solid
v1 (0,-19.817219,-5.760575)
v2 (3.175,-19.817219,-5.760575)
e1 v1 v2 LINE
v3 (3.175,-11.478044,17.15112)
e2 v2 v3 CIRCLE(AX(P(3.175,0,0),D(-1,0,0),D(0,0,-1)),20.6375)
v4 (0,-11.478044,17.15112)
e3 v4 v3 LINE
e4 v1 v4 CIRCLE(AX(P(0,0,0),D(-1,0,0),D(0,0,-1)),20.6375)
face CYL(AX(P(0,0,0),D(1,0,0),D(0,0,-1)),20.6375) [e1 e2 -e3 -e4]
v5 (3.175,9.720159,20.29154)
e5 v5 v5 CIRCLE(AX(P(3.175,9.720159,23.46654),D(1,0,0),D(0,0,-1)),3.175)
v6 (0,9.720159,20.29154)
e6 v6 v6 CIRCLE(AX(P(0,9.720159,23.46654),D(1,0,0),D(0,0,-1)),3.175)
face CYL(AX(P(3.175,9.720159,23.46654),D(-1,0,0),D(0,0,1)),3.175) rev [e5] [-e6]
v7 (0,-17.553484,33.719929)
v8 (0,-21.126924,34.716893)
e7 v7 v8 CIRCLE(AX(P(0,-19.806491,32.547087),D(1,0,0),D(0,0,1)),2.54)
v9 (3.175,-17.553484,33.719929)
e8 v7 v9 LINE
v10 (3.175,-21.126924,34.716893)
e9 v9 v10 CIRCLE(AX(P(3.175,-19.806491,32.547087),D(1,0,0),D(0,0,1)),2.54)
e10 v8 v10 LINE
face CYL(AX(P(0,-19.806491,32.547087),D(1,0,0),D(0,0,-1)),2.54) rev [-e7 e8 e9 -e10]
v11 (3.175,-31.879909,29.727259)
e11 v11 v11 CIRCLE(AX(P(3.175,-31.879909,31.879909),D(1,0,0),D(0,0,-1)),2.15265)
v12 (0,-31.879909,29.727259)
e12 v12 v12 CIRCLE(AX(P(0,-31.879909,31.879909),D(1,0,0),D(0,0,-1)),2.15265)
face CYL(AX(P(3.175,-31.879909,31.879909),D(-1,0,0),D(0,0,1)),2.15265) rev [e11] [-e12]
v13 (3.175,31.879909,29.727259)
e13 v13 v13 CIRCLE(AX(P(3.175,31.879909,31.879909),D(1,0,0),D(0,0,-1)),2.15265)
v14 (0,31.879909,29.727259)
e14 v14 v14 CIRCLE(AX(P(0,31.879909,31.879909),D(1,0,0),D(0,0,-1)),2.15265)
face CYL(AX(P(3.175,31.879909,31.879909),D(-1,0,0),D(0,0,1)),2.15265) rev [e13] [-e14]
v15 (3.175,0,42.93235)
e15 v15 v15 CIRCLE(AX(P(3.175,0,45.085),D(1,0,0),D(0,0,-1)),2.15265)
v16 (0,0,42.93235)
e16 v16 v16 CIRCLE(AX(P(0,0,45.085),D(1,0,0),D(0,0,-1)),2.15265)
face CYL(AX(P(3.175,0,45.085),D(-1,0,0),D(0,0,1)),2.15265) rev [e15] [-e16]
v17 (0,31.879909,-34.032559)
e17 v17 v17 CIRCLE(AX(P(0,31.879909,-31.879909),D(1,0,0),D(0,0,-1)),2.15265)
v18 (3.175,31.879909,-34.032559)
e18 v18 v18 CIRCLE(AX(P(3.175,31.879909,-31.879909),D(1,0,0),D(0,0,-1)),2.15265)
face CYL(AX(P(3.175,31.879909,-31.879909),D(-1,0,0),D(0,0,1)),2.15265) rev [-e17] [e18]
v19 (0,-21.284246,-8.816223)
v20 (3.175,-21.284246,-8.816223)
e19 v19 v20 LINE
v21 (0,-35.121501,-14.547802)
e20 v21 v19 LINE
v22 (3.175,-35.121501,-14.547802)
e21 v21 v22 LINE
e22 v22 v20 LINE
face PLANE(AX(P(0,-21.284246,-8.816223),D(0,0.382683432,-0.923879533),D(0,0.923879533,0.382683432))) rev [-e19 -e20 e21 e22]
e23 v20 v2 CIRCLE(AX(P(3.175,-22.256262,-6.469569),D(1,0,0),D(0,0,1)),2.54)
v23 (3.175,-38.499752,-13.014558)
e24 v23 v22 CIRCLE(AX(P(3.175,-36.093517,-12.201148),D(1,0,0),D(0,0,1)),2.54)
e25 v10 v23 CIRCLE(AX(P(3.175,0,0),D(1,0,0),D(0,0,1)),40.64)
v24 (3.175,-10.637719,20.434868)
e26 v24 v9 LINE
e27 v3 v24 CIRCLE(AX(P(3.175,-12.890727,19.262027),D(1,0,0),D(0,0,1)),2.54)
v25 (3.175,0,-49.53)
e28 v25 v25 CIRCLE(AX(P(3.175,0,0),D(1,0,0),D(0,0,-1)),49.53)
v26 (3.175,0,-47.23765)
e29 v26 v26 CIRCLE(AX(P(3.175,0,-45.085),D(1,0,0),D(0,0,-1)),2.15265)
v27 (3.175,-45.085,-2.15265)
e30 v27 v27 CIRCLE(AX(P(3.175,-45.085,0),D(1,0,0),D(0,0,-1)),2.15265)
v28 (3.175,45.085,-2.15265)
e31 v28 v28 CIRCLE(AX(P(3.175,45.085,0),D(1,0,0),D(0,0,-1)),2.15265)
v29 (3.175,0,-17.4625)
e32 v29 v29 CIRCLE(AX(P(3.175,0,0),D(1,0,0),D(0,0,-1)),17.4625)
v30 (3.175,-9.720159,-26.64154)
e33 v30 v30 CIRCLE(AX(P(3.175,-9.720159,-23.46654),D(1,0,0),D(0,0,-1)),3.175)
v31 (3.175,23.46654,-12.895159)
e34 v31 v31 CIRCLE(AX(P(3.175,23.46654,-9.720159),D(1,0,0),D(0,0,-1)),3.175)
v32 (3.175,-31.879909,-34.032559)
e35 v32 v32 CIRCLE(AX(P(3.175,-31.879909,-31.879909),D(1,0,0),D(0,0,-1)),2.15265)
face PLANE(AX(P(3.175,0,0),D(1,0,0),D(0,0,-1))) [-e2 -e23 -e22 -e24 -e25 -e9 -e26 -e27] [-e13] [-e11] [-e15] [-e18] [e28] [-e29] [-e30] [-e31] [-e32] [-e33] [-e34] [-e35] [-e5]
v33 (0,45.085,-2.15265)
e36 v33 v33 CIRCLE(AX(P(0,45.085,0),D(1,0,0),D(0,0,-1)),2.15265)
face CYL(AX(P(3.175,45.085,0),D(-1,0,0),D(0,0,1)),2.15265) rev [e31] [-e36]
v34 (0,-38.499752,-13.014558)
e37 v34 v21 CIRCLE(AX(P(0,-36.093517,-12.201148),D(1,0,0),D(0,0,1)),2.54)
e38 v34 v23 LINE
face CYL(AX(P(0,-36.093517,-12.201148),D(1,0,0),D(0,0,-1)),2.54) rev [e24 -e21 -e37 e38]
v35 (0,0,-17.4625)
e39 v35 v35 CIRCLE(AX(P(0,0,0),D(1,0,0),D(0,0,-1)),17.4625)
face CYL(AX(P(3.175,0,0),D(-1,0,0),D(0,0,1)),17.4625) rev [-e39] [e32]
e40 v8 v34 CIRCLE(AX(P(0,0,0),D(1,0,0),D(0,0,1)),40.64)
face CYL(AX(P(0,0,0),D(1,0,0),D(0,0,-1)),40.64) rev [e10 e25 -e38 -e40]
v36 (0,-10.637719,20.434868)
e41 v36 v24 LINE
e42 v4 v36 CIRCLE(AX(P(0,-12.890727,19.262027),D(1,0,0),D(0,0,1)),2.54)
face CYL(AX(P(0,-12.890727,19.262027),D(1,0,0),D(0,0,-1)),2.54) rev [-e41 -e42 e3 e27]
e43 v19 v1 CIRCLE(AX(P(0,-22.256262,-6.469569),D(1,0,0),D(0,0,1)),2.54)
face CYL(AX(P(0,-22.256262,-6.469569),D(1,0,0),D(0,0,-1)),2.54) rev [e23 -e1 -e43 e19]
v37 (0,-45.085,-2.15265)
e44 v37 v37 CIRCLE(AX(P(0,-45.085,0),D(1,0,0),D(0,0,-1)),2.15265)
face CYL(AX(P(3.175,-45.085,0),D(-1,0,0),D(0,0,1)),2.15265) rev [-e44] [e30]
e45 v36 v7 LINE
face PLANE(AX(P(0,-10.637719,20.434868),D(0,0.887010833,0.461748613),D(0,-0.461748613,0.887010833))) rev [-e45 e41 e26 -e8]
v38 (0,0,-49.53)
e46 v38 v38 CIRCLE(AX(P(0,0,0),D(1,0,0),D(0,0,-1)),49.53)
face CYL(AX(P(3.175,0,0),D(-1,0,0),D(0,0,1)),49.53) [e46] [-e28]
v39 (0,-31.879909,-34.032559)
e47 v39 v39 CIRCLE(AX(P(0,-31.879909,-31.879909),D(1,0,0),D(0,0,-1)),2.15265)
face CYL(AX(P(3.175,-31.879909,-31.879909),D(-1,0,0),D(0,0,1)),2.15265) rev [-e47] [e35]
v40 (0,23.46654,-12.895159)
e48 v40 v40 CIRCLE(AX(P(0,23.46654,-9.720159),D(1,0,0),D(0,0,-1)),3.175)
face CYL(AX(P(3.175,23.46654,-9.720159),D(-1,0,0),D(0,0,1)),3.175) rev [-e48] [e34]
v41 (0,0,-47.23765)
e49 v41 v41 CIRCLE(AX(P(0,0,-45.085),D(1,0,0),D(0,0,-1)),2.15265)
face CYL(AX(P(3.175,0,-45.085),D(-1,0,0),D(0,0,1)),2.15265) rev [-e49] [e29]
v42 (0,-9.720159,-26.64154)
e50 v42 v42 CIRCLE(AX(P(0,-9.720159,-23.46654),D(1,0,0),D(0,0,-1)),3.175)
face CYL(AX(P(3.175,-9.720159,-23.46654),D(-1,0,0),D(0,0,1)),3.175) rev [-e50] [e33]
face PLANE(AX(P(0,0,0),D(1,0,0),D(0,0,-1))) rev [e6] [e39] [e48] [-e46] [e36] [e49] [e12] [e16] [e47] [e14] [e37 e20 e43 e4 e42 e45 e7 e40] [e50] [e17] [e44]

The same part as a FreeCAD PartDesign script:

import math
import FreeCAD as App
import Part
import Sketcher
from FreeCAD import Vector
Q = App.Units.Quantity

doc = App.newDocument("Part")
params = doc.addObject("Spreadsheet::Sheet", "Params")
for row, (alias, value) in enumerate([
    ("sketch1_diameter", "3.9 in"),
    ("sketch1_diameter2", "0.25 in"),
    ("sketch1_diameter3", "1.375 in"),
    ("pad1_length", "0.125 in"),
    ("sketch2_radius", "0.1 in"),
    ("sketch2_radius2", "1.6 in"),
    ("sketch2_radius3", "0.8125 in"),
], start=1):
    params.set(f"A{row}", alias)
    params.set(f"B{row}", "=" + value)
    params.setAlias(f"B{row}", alias)

body = doc.addObject("PartDesign::Body", "Body")

# Sketch on YZ plane
sketch1 = doc.addObject("Sketcher::SketchObject", "Sketch")
body.addObject(sketch1)
sketch1.AttachmentSupport = (doc.YZ_Plane, [""])
sketch1.MapMode = "FlatFace"
sketch1.addGeometry([
    Part.Circle(Vector(0, 0, 0), Vector(0, 0, 1), 49.5),  # 0
    Part.Circle(Vector(-31.9, 31.9, 0), Vector(0, 0, 1), 2.2),  # 1
    Part.Circle(Vector(-23.5, 9.7, 0), Vector(0, 0, 1), 3.2),  # 2
    Part.Circle(Vector(-45.1, 0, 0), Vector(0, 0, 1), 2.2),  # 3
    Part.Circle(Vector(-31.9, -31.9, 0), Vector(0, 0, 1), 2.2),  # 4
    Part.Circle(Vector(-9.7, -23.5, 0), Vector(0, 0, 1), 3.2),  # 5
    Part.Circle(Vector(0, 45.1, 0), Vector(0, 0, 1), 2.2),  # 6
    Part.Circle(Vector(9.7, 23.5, 0), Vector(0, 0, 1), 3.2),  # 7
    Part.Circle(Vector(31.9, 31.9, 0), Vector(0, 0, 1), 2.2),  # 8
    Part.Circle(Vector(0, 0, 0), Vector(0, 0, 1), 17.5),  # 9
    Part.Circle(Vector(23.5, -9.7, 0), Vector(0, 0, 1), 3.2),  # 10
    Part.Circle(Vector(0, -45.1, 0), Vector(0, 0, 1), 2.2),  # 11
    Part.Circle(Vector(45.1, 0, 0), Vector(0, 0, 1), 2.2),  # 12
    Part.Circle(Vector(31.9, -31.9, 0), Vector(0, 0, 1), 2.2),  # 13
], False)
sketch1.addConstraint([
    Sketcher.Constraint("Coincident", 0, 3, -1, 1),
    Sketcher.Constraint("Coincident", 9, 3, -1, 1),
    Sketcher.Constraint("Equal", 1, 3),
    Sketcher.Constraint("Equal", 3, 4),
    Sketcher.Constraint("Equal", 2, 5),
    Sketcher.Constraint("Equal", 4, 6),
    Sketcher.Constraint("Equal", 5, 7),
    Sketcher.Constraint("Equal", 6, 8),
    Sketcher.Constraint("Equal", 7, 10),
    Sketcher.Constraint("Equal", 8, 11),
    Sketcher.Constraint("Equal", 11, 12),
    Sketcher.Constraint("Equal", 12, 13),
    Sketcher.Constraint("Symmetric", 5, 3, 7, 3, -1, 1),
    Sketcher.Constraint("Symmetric", 4, 3, 8, 3, -1, 1),
    Sketcher.Constraint("Symmetric", 2, 3, 10, 3, -1, 1),
    Sketcher.Constraint("Symmetric", 6, 3, 11, 3, -1, 1),
    Sketcher.Constraint("Symmetric", 3, 3, 12, 3, -1, 1),
    Sketcher.Constraint("Symmetric", 1, 3, 13, 3, -1, 1),
    Sketcher.Constraint("Symmetric", 1, 3, 8, 3, -2),
    Sketcher.Constraint("PointOnObject", 3, 3, -1),
    Sketcher.Constraint("PointOnObject", 6, 3, -2),
    Sketcher.Constraint("Diameter", 0, Q("3.9 in")),
    Sketcher.Constraint("Diameter", 2, Q("0.25 in")),
    Sketcher.Constraint("Diameter", 9, Q("1.375 in")),
    Sketcher.Constraint("Diameter", 1, Q("0.1695 in")),
    Sketcher.Constraint("DistanceX", 3, 3, -1, 1, Q("1.775 in")),
    Sketcher.Constraint("DistanceY", -1, 1, 6, 3, Q("1.775 in")),
    Sketcher.Constraint("DistanceY", 5, 3, 2, 3, 33.186699),
    Sketcher.Constraint("DistanceX", 2, 3, 7, 3, 33.186699),
    Sketcher.Constraint("DistanceX", 1, 3, -1, 1, 31.879909),
    Sketcher.Constraint("DistanceY", -1, 1, 1, 3, 31.879909),
    Sketcher.Constraint("DistanceX", 2, 3, -1, 1, 23.46654),
    Sketcher.Constraint("DistanceY", -1, 1, 2, 3, 9.720159),
])
sketch1.setExpression("Constraints[21]", "Params.sketch1_diameter")
sketch1.setExpression("Constraints[22]", "Params.sketch1_diameter2")
sketch1.setExpression("Constraints[23]", "Params.sketch1_diameter3")
pad1 = doc.addObject("PartDesign::Pad", "Pad")
body.addObject(pad1)
pad1.Profile = sketch1
pad1.setExpression("Length", "Params.pad1_length")

# Sketch on YZ plane
sketch2 = doc.addObject("Sketcher::SketchObject", "Sketch001")
body.addObject(sketch2)
sketch2.AttachmentSupport = (doc.YZ_Plane, [""])
sketch2.MapMode = "FlatFace"
sketch2.AttachmentOffset = App.Placement(Vector(0, 0, 0.125 * 25.4), App.Rotation())
sketch2.addGeometry([
    Part.LineSegment(Vector(-10.6, 20.4, 0), Vector(-17.6, 33.7, 0)),  # 0
    Part.ArcOfCircle(Part.Circle(Vector(-19.8, 32.5, 0), Vector(0, 0, 1), 2.5), math.radians(27), math.radians(121)),  # 1
    Part.ArcOfCircle(Part.Circle(Vector(0, 0, 0), Vector(0, 0, 1), 40.6), math.radians(121), math.radians(199)),  # 2
    Part.ArcOfCircle(Part.Circle(Vector(-36.1, -12.2, 0), Vector(0, 0, 1), 2.5), math.radians(-161), math.radians(-68)),  # 3
    Part.LineSegment(Vector(-35.1, -14.5, 0), Vector(-21.3, -8.8, 0)),  # 4
    Part.ArcOfCircle(Part.Circle(Vector(-22.3, -6.5, 0), Vector(0, 0, 1), 2.5), math.radians(-67), math.radians(16)),  # 5
    Part.ArcOfCircle(Part.Circle(Vector(0, 0, 0), Vector(0, 0, 1), 20.6), math.radians(124), math.radians(196)),  # 6
    Part.ArcOfCircle(Part.Circle(Vector(-12.9, 19.3, 0), Vector(0, 0, 1), 2.5), math.radians(-56), math.radians(28)),  # 7
], False)
sketch2.addConstraint([
    Sketcher.Constraint("Tangent", 0, 2, 1, 1),
    Sketcher.Constraint("Tangent", 1, 2, 2, 1),
    Sketcher.Constraint("Tangent", 2, 2, 3, 1),
    Sketcher.Constraint("Tangent", 3, 2, 4, 1),
    Sketcher.Constraint("Tangent", 4, 2, 5, 1),
    Sketcher.Constraint("Tangent", 5, 2, 6, 2),
    Sketcher.Constraint("Tangent", 6, 1, 7, 1),
    Sketcher.Constraint("Tangent", 7, 2, 0, 1),
    Sketcher.Constraint("Coincident", 2, 3, -1, 1),
    Sketcher.Constraint("Coincident", 6, 3, -1, 1),
    Sketcher.Constraint("Equal", 1, 3),
    Sketcher.Constraint("Equal", 3, 5),
    Sketcher.Constraint("Equal", 5, 7),
    Sketcher.Constraint("Equal", 0, 4),
    Sketcher.Constraint("Radius", 1, Q("0.1 in")),
    Sketcher.Constraint("Radius", 2, Q("1.6 in")),
    Sketcher.Constraint("Radius", 6, Q("0.8125 in")),
    Sketcher.Constraint("Angle", 0, Q("117.5 deg")),
    Sketcher.Constraint("Angle", 4, Q("22.5 deg")),
    Sketcher.Constraint("DistanceX", 3, 2, -1, 1, 35.121501),
])
sketch2.setExpression("Constraints[14]", "Params.sketch2_radius")
sketch2.setExpression("Constraints[15]", "Params.sketch2_radius2")
sketch2.setExpression("Constraints[16]", "Params.sketch2_radius3")
pocket1 = doc.addObject("PartDesign::Pocket", "Pocket")
body.addObject(pocket1)
pocket1.Profile = sketch2
pocket1.Type = "ThroughAll"

doc.recompute()
